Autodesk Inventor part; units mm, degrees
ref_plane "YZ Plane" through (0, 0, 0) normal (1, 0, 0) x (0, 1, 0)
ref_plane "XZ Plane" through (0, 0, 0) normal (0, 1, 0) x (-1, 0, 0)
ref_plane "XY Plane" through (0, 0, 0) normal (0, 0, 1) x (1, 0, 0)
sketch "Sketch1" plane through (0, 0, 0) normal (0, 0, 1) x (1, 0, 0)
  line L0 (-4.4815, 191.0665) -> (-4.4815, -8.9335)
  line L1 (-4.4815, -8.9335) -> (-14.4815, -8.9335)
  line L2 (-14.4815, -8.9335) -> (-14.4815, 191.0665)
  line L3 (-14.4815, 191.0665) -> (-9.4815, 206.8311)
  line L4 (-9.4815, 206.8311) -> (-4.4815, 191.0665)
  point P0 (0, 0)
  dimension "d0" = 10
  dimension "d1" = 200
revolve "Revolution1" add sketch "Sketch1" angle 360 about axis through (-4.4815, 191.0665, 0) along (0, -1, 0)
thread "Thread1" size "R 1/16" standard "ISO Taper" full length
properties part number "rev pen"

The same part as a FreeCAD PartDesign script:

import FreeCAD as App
import Part
import Sketcher

V = App.Vector
Q = App.Units.Quantity

doc = App.newDocument("Part")
body = doc.addObject("PartDesign::Body", "Body")

# Sketch on XY plane
sketch1 = body.newObject("Sketcher::SketchObject", "Sketch")
sketch1.AttachmentSupport = (doc.getObject("XY_Plane"), [""])
sketch1.MapMode = "FlatFace"
sketch1.addGeometry([
    Part.LineSegment(V(-4, -9, 0), V(-4, 191, 0)),  # 0
    Part.LineSegment(V(-4, 191, 0), V(-9, 207, 0)),  # 1
    Part.LineSegment(V(-9, 207, 0), V(-14, 191, 0)),  # 2
    Part.LineSegment(V(-14, 191, 0), V(-14, -9, 0)),  # 3
    Part.LineSegment(V(-14, -9, 0), V(-4, -9, 0)),  # 4
], False)
sketch1.addGeometry(Part.LineSegment(V(-4, 207, 0), V(-4, -9, 0)), True)  # axis
sketch1.addConstraint([
    Sketcher.Constraint("Coincident", 0, 2, 1, 1),
    Sketcher.Constraint("Coincident", 1, 2, 2, 1),
    Sketcher.Constraint("Coincident", 2, 2, 3, 1),
    Sketcher.Constraint("Coincident", 3, 2, 4, 1),
    Sketcher.Constraint("Coincident", 4, 2, 0, 1),
    Sketcher.Constraint("Vertical", 0),
    Sketcher.Constraint("Vertical", 3),
    Sketcher.Constraint("Horizontal", 4),
    Sketcher.Constraint("Vertical", 5),
    Sketcher.Constraint("Coincident", 5, 2, 4, 2),
    Sketcher.Constraint("Horizontal", 0, 2, 2, 2),
    Sketcher.Constraint("Horizontal", 1, 2, 5, 1),
    Sketcher.Constraint("Equal", 1, 2),
    Sketcher.Constraint("DistanceX", 4, 1, 4, 2, Q("10 mm")),
    Sketcher.Constraint("DistanceY", 0, 1, 0, 2, Q("200 mm")),
    Sketcher.Constraint("DistanceY", 5, 2, 5, 1, Q("215.7646 mm")),
    Sketcher.Constraint("DistanceY", -1, 1, 1, 2, Q("206.831 mm")),
    Sketcher.Constraint("DistanceX", 0, 2, -1, 1, Q("4.4815 mm")),
])
revolution = body.newObject("PartDesign::Revolution", "Revolution")
revolution.Profile = sketch1
revolution.ReferenceAxis = (sketch1, ["Axis0"])
revolution.Angle = 360

doc.recompute()
